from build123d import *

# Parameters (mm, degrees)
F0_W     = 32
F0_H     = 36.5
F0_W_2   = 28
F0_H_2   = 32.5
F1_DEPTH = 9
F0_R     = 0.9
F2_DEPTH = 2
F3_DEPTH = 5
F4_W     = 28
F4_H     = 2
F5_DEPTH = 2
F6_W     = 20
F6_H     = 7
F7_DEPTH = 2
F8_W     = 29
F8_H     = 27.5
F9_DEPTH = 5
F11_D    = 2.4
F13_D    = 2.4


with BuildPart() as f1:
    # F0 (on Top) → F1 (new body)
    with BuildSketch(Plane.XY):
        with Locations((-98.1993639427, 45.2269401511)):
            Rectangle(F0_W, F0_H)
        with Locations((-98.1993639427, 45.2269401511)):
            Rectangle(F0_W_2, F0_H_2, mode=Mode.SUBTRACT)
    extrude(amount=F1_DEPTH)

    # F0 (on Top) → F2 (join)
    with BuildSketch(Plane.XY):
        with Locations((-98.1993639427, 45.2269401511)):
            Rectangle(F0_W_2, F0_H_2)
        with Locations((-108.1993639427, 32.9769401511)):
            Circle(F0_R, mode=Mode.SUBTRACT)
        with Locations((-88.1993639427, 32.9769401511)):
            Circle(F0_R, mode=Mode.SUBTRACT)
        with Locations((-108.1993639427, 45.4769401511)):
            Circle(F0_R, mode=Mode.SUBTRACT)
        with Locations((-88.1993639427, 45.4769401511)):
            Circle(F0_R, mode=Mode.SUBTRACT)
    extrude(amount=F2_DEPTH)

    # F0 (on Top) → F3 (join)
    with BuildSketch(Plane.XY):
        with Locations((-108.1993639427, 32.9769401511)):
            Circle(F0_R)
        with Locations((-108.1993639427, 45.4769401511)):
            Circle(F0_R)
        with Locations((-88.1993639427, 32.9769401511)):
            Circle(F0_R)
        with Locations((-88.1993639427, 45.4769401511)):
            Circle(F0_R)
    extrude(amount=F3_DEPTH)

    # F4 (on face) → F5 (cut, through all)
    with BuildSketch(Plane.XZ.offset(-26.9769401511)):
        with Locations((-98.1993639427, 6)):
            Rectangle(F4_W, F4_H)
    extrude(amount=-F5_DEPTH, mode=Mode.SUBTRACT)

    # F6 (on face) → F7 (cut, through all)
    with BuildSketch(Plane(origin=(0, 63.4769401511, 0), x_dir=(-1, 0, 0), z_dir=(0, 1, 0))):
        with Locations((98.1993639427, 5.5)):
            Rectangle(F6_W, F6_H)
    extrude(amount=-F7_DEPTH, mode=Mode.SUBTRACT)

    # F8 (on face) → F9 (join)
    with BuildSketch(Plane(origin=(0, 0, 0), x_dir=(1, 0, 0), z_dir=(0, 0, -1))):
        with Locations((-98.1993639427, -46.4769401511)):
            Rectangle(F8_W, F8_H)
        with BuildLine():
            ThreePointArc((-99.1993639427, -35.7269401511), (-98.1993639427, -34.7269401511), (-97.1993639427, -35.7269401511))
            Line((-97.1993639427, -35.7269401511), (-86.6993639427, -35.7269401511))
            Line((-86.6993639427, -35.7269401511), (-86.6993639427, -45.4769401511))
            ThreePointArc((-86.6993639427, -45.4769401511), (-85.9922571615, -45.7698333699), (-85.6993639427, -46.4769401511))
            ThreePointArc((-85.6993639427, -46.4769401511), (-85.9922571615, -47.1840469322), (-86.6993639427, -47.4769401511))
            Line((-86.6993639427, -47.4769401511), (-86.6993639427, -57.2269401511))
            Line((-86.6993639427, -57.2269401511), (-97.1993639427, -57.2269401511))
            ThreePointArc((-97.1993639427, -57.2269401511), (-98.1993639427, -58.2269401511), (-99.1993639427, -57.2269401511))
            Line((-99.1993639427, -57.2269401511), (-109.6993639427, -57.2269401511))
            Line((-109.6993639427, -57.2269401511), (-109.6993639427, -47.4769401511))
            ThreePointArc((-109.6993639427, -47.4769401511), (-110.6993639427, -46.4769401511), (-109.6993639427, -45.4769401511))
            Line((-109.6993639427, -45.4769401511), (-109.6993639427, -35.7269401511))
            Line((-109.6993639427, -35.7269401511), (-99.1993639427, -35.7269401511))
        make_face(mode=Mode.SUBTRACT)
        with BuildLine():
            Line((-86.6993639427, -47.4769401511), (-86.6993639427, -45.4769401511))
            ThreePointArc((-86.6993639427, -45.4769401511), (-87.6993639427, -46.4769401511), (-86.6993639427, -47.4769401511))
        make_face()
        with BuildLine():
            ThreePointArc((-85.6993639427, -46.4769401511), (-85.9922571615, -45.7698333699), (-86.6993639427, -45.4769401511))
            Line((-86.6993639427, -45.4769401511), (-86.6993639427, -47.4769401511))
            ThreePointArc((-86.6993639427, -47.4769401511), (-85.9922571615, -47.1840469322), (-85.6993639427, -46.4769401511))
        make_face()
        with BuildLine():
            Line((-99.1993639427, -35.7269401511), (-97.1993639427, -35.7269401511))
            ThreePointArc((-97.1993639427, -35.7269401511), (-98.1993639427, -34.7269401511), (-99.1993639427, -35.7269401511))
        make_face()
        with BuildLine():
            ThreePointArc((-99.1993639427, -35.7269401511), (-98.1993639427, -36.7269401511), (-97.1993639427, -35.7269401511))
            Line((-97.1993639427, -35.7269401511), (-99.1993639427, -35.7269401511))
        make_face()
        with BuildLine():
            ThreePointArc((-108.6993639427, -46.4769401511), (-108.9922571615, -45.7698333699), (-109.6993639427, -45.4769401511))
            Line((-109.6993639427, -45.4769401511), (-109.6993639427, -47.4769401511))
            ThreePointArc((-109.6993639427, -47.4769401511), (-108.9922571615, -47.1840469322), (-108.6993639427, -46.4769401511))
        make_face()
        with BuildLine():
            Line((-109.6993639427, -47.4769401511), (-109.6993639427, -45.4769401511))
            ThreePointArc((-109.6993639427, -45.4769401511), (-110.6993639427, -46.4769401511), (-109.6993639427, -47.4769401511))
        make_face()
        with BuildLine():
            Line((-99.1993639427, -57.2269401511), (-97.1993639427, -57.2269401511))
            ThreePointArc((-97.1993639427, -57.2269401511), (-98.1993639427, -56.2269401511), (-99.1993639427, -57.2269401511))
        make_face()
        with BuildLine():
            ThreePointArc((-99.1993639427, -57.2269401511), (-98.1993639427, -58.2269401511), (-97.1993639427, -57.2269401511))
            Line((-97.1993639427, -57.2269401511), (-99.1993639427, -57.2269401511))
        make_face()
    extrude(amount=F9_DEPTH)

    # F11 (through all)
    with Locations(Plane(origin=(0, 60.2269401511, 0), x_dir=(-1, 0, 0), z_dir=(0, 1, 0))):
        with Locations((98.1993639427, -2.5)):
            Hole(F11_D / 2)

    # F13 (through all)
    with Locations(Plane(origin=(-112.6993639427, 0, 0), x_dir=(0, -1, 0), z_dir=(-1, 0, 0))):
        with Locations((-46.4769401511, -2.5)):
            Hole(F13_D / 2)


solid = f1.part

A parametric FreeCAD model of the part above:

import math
import FreeCAD as App
import Part
import Sketcher

V = App.Vector
Q = App.Units.Quantity


def add_polygon(sketch, points):
    """Adds a closed chain of lines whose ends are joined by coincident constraints."""
    first, n = sketch.GeometryCount, len(points)
    for a, b in zip(points, points[1:] + points[:1]):
        sketch.addGeometry(Part.LineSegment(App.Vector(*a, 0), App.Vector(*b, 0)), False)
    for i in range(n):
        sketch.addConstraint(Sketcher.Constraint("Coincident", first + i, 2, first + (i + 1) % n, 1))

doc = App.newDocument("Part")
params = doc.addObject("Spreadsheet::Sheet", "Params")
for row, (alias, value) in enumerate([
    ("sketch1_width", "32 mm"),
    ("sketch1_width2", "28 mm"),
    ("sketch1_height", "36.5 mm"),
    ("sketch1_height2", "32.5 mm"),
    ("pad1_length", "9 mm"),
    ("sketch2_diameter", "1.8 mm"),
    ("sketch2_width", "28 mm"),
    ("sketch2_height", "32.5 mm"),
    ("pad2_length", "2 mm"),
    ("sketch3_diameter", "1.8 mm"),
    ("pad3_length", "5 mm"),
    ("sketch4_width", "28 mm"),
    ("sketch4_height", "2 mm"),
    ("pocket1_length", "2 mm"),
    ("sketch5_width", "20 mm"),
    ("sketch5_height", "7 mm"),
    ("pocket2_length", "2 mm"),
    ("sketch6_radius", "1 mm"),
    ("sketch6_width", "29 mm"),
    ("sketch6_width2", "10.5 mm"),
    ("sketch6_height", "27.5 mm"),
    ("pad4_length", "5 mm"),
    ("sketch7_diameter", "2.4 mm"),
    ("hole_diameter", "2.4 mm"),
    ("sketch8_diameter", "2.4 mm"),
    ("hole2_diameter", "2.4 mm"),
], start=1):
    params.set(f"A{row}", alias)
    params.set(f"B{row}", "=" + value)
    params.setAlias(f"B{row}", alias)

body = doc.addObject("PartDesign::Body", "Body")

sketch1 = doc.addObject("Sketcher::SketchObject", "Sketch")
body.addObject(sketch1)
sketch1.AttachmentSupport = (doc.XY_Plane, [""])
sketch1.MapMode = "FlatFace"
add_polygon(sketch1, [(-114, 63), (-114, 27), (-82, 27), (-82, 63)])
add_polygon(sketch1, [(-84, 29), (-112, 29), (-112, 61), (-84, 61)])
sketch1.addConstraint(Sketcher.Constraint("Vertical", 0))
sketch1.addConstraint(Sketcher.Constraint("Horizontal", 1))
sketch1.addConstraint(Sketcher.Constraint("Vertical", 2))
sketch1.addConstraint(Sketcher.Constraint("Horizontal", 3))
sketch1.addConstraint(Sketcher.Constraint("Horizontal", 4))
sketch1.addConstraint(Sketcher.Constraint("Vertical", 5))
sketch1.addConstraint(Sketcher.Constraint("Horizontal", 6))
sketch1.addConstraint(Sketcher.Constraint("Vertical", 7))
sketch1.addConstraint(Sketcher.Constraint("DistanceX", 1, 1, 1, 2, Q("32 mm")))
sketch1.addConstraint(Sketcher.Constraint("DistanceX", 4, 2, 4, 1, Q("28 mm")))
sketch1.addConstraint(Sketcher.Constraint("DistanceY", 0, 2, 0, 1, Q("36.5 mm")))
sketch1.addConstraint(Sketcher.Constraint("DistanceY", 5, 1, 5, 2, Q("32.5 mm")))
sketch1.addConstraint(Sketcher.Constraint("DistanceX", 0, 2, 4, 2, Q("2 mm")))
sketch1.addConstraint(Sketcher.Constraint("DistanceY", 0, 2, 4, 2, Q("2 mm")))
sketch1.addConstraint(Sketcher.Constraint("DistanceY", -1, 1, 0, 2, Q("26.97694 mm")))
sketch1.addConstraint(Sketcher.Constraint("DistanceX", 0, 2, -1, 1, Q("114.199364 mm")))
sketch1.setExpression("Constraints[16]", "Params.sketch1_width")
sketch1.setExpression("Constraints[17]", "Params.sketch1_width2")
sketch1.setExpression("Constraints[18]", "Params.sketch1_height")
sketch1.setExpression("Constraints[19]", "Params.sketch1_height2")
pad1 = doc.addObject("PartDesign::Pad", "Pad")
body.addObject(pad1)
pad1.Profile = sketch1
pad1.setExpression("Length", "Params.pad1_length")

sketch2 = doc.addObject("Sketcher::SketchObject", "Sketch001")
body.addObject(sketch2)
sketch2.AttachmentSupport = (doc.XY_Plane, [""])
sketch2.MapMode = "FlatFace"
add_polygon(sketch2, [(-112.2, 61.5), (-112.2, 29), (-84.2, 29), (-84.2, 61.5)])
sketch2.addGeometry(Part.Circle(V(-108.2, 33, 0), V(0, 0, 1), 0.9), False)
sketch2.addGeometry(Part.Circle(V(-88.2, 33, 0), V(0, 0, 1), 0.9), False)
sketch2.addGeometry(Part.Circle(V(-108.2, 45.5, 0), V(0, 0, 1), 0.9), False)
sketch2.addGeometry(Part.Circle(V(-88.2, 45.5, 0), V(0, 0, 1), 0.9), False)
sketch2.addConstraint(Sketcher.Constraint("Vertical", 0))
sketch2.addConstraint(Sketcher.Constraint("Horizontal", 1))
sketch2.addConstraint(Sketcher.Constraint("Vertical", 2))
sketch2.addConstraint(Sketcher.Constraint("Horizontal", 3))
sketch2.addConstraint(Sketcher.Constraint("Equal", 4, 5))
sketch2.addConstraint(Sketcher.Constraint("Equal", 5, 6))
sketch2.addConstraint(Sketcher.Constraint("Equal", 6, 7))
sketch2.addConstraint(Sketcher.Constraint("Horizontal", 4, 3, 5, 3))
sketch2.addConstraint(Sketcher.Constraint("Horizontal", 6, 3, 7, 3))
sketch2.addConstraint(Sketcher.Constraint("Vertical", 4, 3, 6, 3))
sketch2.addConstraint(Sketcher.Constraint("Vertical", 5, 3, 7, 3))
sketch2.addConstraint(Sketcher.Constraint("Diameter", 4, Q("1.8 mm")))
sketch2.addConstraint(Sketcher.Constraint("DistanceX", 1, 1, 1, 2, Q("28 mm")))
sketch2.addConstraint(Sketcher.Constraint("DistanceY", 0, 2, 0, 1, Q("32.5 mm")))
sketch2.addConstraint(Sketcher.Constraint("DistanceX", 4, 3, 5, 3, Q("20 mm")))
sketch2.addConstraint(Sketcher.Constraint("DistanceX", 0, 2, 4, 3, Q("4 mm")))
sketch2.addConstraint(Sketcher.Constraint("DistanceY", 0, 2, 4, 3, Q("4 mm")))
sketch2.addConstraint(Sketcher.Constraint("DistanceY", 7, 3, 2, 2, Q("16 mm")))
sketch2.addConstraint(Sketcher.Constraint("DistanceY", -1, 1, 4, 3, Q("32.97694 mm")))
sketch2.addConstraint(Sketcher.Constraint("DistanceX", 4, 3, -1, 1, Q("108.199364 mm")))
sketch2.setExpression("Constraints[15]", "Params.sketch2_diameter")
sketch2.setExpression("Constraints[16]", "Params.sketch2_width")
sketch2.setExpression("Constraints[17]", "Params.sketch2_height")
pad2 = doc.addObject("PartDesign::Pad", "Pad001")
body.addObject(pad2)
pad2.Profile = sketch2
pad2.setExpression("Length", "Params.pad2_length")

sketch3 = doc.addObject("Sketcher::SketchObject", "Sketch002")
body.addObject(sketch3)
sketch3.AttachmentSupport = (doc.XY_Plane, [""])
sketch3.MapMode = "FlatFace"
sketch3.addGeometry(Part.Circle(V(-108.2, 33, 0), V(0, 0, 1), 0.9), False)
sketch3.addGeometry(Part.Circle(V(-108.2, 45.5, 0), V(0, 0, 1), 0.9), False)
sketch3.addGeometry(Part.Circle(V(-88.2, 33, 0), V(0, 0, 1), 0.9), False)
sketch3.addGeometry(Part.Circle(V(-88.2, 45.5, 0), V(0, 0, 1), 0.9), False)
sketch3.addConstraint(Sketcher.Constraint("Equal", 0, 1))
sketch3.addConstraint(Sketcher.Constraint("Equal", 1, 2))
sketch3.addConstraint(Sketcher.Constraint("Equal", 2, 3))
sketch3.addConstraint(Sketcher.Constraint("Horizontal", 0, 3, 2, 3))
sketch3.addConstraint(Sketcher.Constraint("Horizontal", 1, 3, 3, 3))
sketch3.addConstraint(Sketcher.Constraint("Vertical", 0, 3, 1, 3))
sketch3.addConstraint(Sketcher.Constraint("Vertical", 2, 3, 3, 3))
sketch3.addConstraint(Sketcher.Constraint("Diameter", 0, Q("1.8 mm")))
sketch3.addConstraint(Sketcher.Constraint("DistanceX", 0, 3, 2, 3, Q("20 mm")))
sketch3.addConstraint(Sketcher.Constraint("DistanceY", 0, 3, 1, 3, Q("12.5 mm")))
sketch3.addConstraint(Sketcher.Constraint("DistanceY", -1, 1, 0, 3, Q("32.97694 mm")))
sketch3.addConstraint(Sketcher.Constraint("DistanceX", 0, 3, -1, 1, Q("108.199364 mm")))
sketch3.setExpression("Constraints[7]", "Params.sketch3_diameter")
pad3 = doc.addObject("PartDesign::Pad", "Pad002")
body.addObject(pad3)
pad3.Profile = sketch3
pad3.setExpression("Length", "Params.pad3_length")

sketch4 = doc.addObject("Sketcher::SketchObject", "Sketch003")
body.addObject(sketch4)
sketch4.AttachmentSupport = (doc.XZ_Plane, [""])
sketch4.MapMode = "FlatFace"
sketch4.AttachmentOffset = App.Placement(V(0, 0, -26.97694), App.Rotation())
add_polygon(sketch4, [(-112.2, 7), (-112.2, 5), (-84.2, 5), (-84.2, 7)])
sketch4.addConstraint(Sketcher.Constraint("Vertical", 0))
sketch4.addConstraint(Sketcher.Constraint("Horizontal", 1))
sketch4.addConstraint(Sketcher.Constraint("Vertical", 2))
sketch4.addConstraint(Sketcher.Constraint("Horizontal", 3))
sketch4.addConstraint(Sketcher.Constraint("DistanceX", 1, 1, 1, 2, Q("28 mm")))
sketch4.addConstraint(Sketcher.Constraint("DistanceY", 0, 2, 0, 1, Q("2 mm")))
sketch4.addConstraint(Sketcher.Constraint("DistanceY", -1, 1, 0, 2, Q("5 mm")))
sketch4.addConstraint(Sketcher.Constraint("DistanceX", 0, 2, -1, 1, Q("112.199364 mm")))
sketch4.setExpression("Constraints[8]", "Params.sketch4_width")
sketch4.setExpression("Constraints[9]", "Params.sketch4_height")
pocket1 = doc.addObject("PartDesign::Pocket", "Pocket")
body.addObject(pocket1)
pocket1.Profile = sketch4
pocket1.setExpression("Length", "Params.pocket1_length")

sketch5 = doc.addObject("Sketcher::SketchObject", "Sketch004")
body.addObject(sketch5)
sketch5.AttachmentSupport = (doc.XZ_Plane, [""])
sketch5.MapMode = "FlatFace"
sketch5.AttachmentOffset = App.Placement(V(0, 0, -63.47694), App.Rotation())
add_polygon(sketch5, [(-88, 9), (-88, 2), (-108, 2), (-108, 9)])
sketch5.addConstraint(Sketcher.Constraint("Vertical", 0))
sketch5.addConstraint(Sketcher.Constraint("Horizontal", 1))
sketch5.addConstraint(Sketcher.Constraint("Vertical", 2))
sketch5.addConstraint(Sketcher.Constraint("Horizontal", 3))
sketch5.addConstraint(Sketcher.Constraint("DistanceX", 1, 2, 1, 1, Q("20 mm")))
sketch5.addConstraint(Sketcher.Constraint("DistanceY", 0, 2, 0, 1, Q("7 mm")))
sketch5.addConstraint(Sketcher.Constraint("DistanceY", -1, 1, 0, 2, Q("2 mm")))
sketch5.addConstraint(Sketcher.Constraint("DistanceX", 0, 2, -1, 1, Q("88.199364 mm")))
sketch5.setExpression("Constraints[8]", "Params.sketch5_width")
sketch5.setExpression("Constraints[9]", "Params.sketch5_height")
pocket2 = doc.addObject("PartDesign::Pocket", "Pocket001")
body.addObject(pocket2)
pocket2.Profile = sketch5
pocket2.setExpression("Length", "Params.pocket2_length")
pocket2.Reversed = True

sketch6 = doc.addObject("Sketcher::SketchObject", "Sketch005")
body.addObject(sketch6)
sketch6.AttachmentSupport = (doc.XY_Plane, [""])
sketch6.MapMode = "FlatFace"
add_polygon(sketch6, [(-112.7, 32.7), (-112.7, 60.2), (-83.7, 60.2), (-83.7, 32.7)])
sketch6.addGeometry(Part.LineSegment(V(-109.7, 35.7, 0), V(-99.2, 35.7, 0)), False)
sketch6.addGeometry(Part.ArcOfCircle(Part.Circle(V(-98.2, 35.7, 0), V(0, 0, 1), 1), math.radians(0), math.radians(180)), False)
sketch6.addGeometry(Part.LineSegment(V(-97.2, 35.7, 0), V(-86.7, 35.7, 0)), False)
sketch6.addGeometry(Part.LineSegment(V(-86.7, 35.7, 0), V(-86.7, 45.5, 0)), False)
sketch6.addGeometry(Part.ArcOfCircle(Part.Circle(V(-86.7, 46.5, 0), V(0, 0, 1), 1), math.radians(90), math.radians(270)), False)
sketch6.addGeometry(Part.LineSegment(V(-86.7, 47.5, 0), V(-86.7, 57.2, 0)), False)
sketch6.addGeometry(Part.LineSegment(V(-86.7, 57.2, 0), V(-97.2, 57.2, 0)), False)
sketch6.addGeometry(Part.ArcOfCircle(Part.Circle(V(-98.2, 57.2, 0), V(0, 0, 1), 1), math.radians(180), math.radians(360)), False)
sketch6.addGeometry(Part.LineSegment(V(-99.2, 57.2, 0), V(-109.7, 57.2, 0)), False)
sketch6.addGeometry(Part.LineSegment(V(-109.7, 57.2, 0), V(-109.7, 47.5, 0)), False)
sketch6.addGeometry(Part.ArcOfCircle(Part.Circle(V(-109.7, 46.5, 0), V(0, 0, 1), 1), math.radians(0), math.radians(90)), False)
sketch6.addGeometry(Part.ArcOfCircle(Part.Circle(V(-109.7, 46.5, 0), V(0, 0, 1), 1), math.radians(-90), math.radians(0)), False)
sketch6.addGeometry(Part.LineSegment(V(-109.7, 45.5, 0), V(-109.7, 35.7, 0)), False)
sketch6.addConstraint(Sketcher.Constraint("Coincident", 4, 2, 5, 2))
sketch6.addConstraint(Sketcher.Constraint("Coincident", 5, 1, 6, 1))
sketch6.addConstraint(Sketcher.Constraint("Coincident", 6, 2, 7, 1))
sketch6.addConstraint(Sketcher.Constraint("Coincident", 7, 2, 8, 2))
sketch6.addConstraint(Sketcher.Constraint("Coincident", 8, 1, 9, 1))
sketch6.addConstraint(Sketcher.Constraint("Coincident", 9, 2, 10, 1))
sketch6.addConstraint(Sketcher.Constraint("Coincident", 10, 2, 11, 2))
sketch6.addConstraint(Sketcher.Constraint("Coincident", 11, 1, 12, 1))
sketch6.addConstraint(Sketcher.Constraint("Coincident", 12, 2, 13, 1))
sketch6.addConstraint(Sketcher.Constraint("Coincident", 13, 2, 14, 2))
sketch6.addConstraint(Sketcher.Constraint("Tangent", 14, 1, 15, 2))
sketch6.addConstraint(Sketcher.Constraint("Coincident", 15, 1, 16, 1))
sketch6.addConstraint(Sketcher.Constraint("Coincident", 16, 2, 4, 1))
sketch6.addConstraint(Sketcher.Constraint("Vertical", 0))
sketch6.addConstraint(Sketcher.Constraint("Horizontal", 1))
sketch6.addConstraint(Sketcher.Constraint("Vertical", 2))
sketch6.addConstraint(Sketcher.Constraint("Horizontal", 3))
sketch6.addConstraint(Sketcher.Constraint("Horizontal", 4))
sketch6.addConstraint(Sketcher.Constraint("Horizontal", 6))
sketch6.addConstraint(Sketcher.Constraint("Vertical", 7))
sketch6.addConstraint(Sketcher.Constraint("Vertical", 9))
sketch6.addConstraint(Sketcher.Constraint("Horizontal", 10))
sketch6.addConstraint(Sketcher.Constraint("Horizontal", 12))
sketch6.addConstraint(Sketcher.Constraint("Vertical", 13))
sketch6.addConstraint(Sketcher.Constraint("Vertical", 16))
sketch6.addConstraint(Sketcher.Constraint("Equal", 5, 8))
sketch6.addConstraint(Sketcher.Constraint("Equal", 8, 11))
sketch6.addConstraint(Sketcher.Constraint("Equal", 11, 14))
sketch6.addConstraint(Sketcher.Constraint("Equal", 14, 15))
sketch6.addConstraint(Sketcher.Constraint("Horizontal", 8, 3, 14, 3))
sketch6.addConstraint(Sketcher.Constraint("Horizontal", 5, 3, 4, 2))
sketch6.addConstraint(Sketcher.Constraint("Horizontal", 4, 2, 5, 1))
sketch6.addConstraint(Sketcher.Constraint("Horizontal", 11, 3, 9, 2))
sketch6.addConstraint(Sketcher.Constraint("Horizontal", 10, 2, 11, 1))
sketch6.addConstraint(Sketcher.Constraint("Horizontal", 15, 3, 14, 1))
sketch6.addConstraint(Sketcher.Constraint("Vertical", 5, 3, 11, 3))
sketch6.addConstraint(Sketcher.Constraint("Vertical", 8, 3, 6, 2))
sketch6.addConstraint(Sketcher.Constraint("Vertical", 7, 2, 8, 1))
sketch6.addConstraint(Sketcher.Constraint("Vertical", 15, 3, 12, 2))
sketch6.addConstraint(Sketcher.Constraint("Vertical", 13, 2, 15, 1))
sketch6.addConstraint(Sketcher.Constraint("Equal", 4, 6))
sketch6.addConstraint(Sketcher.Constraint("Equal", 7, 9))
sketch6.addConstraint(Sketcher.Constraint("Radius", 5, Q("1 mm")))
sketch6.addConstraint(Sketcher.Constraint("DistanceX", 1, 1, 1, 2, Q("29 mm")))
sketch6.addConstraint(Sketcher.Constraint("DistanceX", 4, 1, 4, 2, Q("10.5 mm")))
sketch6.addConstraint(Sketcher.Constraint("DistanceY", 0, 1, 0, 2, Q("27.5 mm")))
sketch6.addConstraint(Sketcher.Constraint("DistanceX", 0, 2, 14, 3, Q("3 mm")))
sketch6.addConstraint(Sketcher.Constraint("DistanceY", 11, 3, 0, 2, Q("3 mm")))
sketch6.addConstraint(Sketcher.Constraint("DistanceY", 2, 2, 5, 3, Q("3 mm")))
sketch6.addConstraint(Sketcher.Constraint("DistanceY", -1, 1, 5, 3, Q("35.72694 mm")))
sketch6.addConstraint(Sketcher.Constraint("DistanceX", 5, 3, -1, 1, Q("98.199364 mm")))
sketch6.setExpression("Constraints[46]", "Params.sketch6_radius")
sketch6.setExpression("Constraints[47]", "Params.sketch6_width")
sketch6.setExpression("Constraints[48]", "Params.sketch6_width2")
sketch6.setExpression("Constraints[49]", "Params.sketch6_height")
pad4 = doc.addObject("PartDesign::Pad", "Pad003")
body.addObject(pad4)
pad4.Profile = sketch6
pad4.setExpression("Length", "Params.pad4_length")
pad4.Reversed = True

sketch7 = doc.addObject("Sketcher::SketchObject", "Sketch006")
body.addObject(sketch7)
sketch7.AttachmentSupport = (doc.XZ_Plane, [""])
sketch7.MapMode = "FlatFace"
sketch7.AttachmentOffset = App.Placement(V(0, 0, -60.22694), App.Rotation())
sketch7.addGeometry(Part.Circle(V(-98.2, -2.5, 0), V(0, 0, 1), 1.2), False)
sketch7.addConstraint(Sketcher.Constraint("Diameter", 0, Q("2.4 mm")))
sketch7.addConstraint(Sketcher.Constraint("DistanceY", 0, 3, -1, 1, Q("2.5 mm")))
sketch7.addConstraint(Sketcher.Constraint("DistanceX", 0, 3, -1, 1, Q("98.199364 mm")))
sketch7.setExpression("Constraints[0]", "Params.sketch7_diameter")
doc.recompute()
hole = doc.addObject("PartDesign::Hole", "Hole")
body.addObject(hole)
hole.Profile = sketch7
hole.ThreadType = "None"
hole.setExpression("Diameter", "Params.hole_diameter")
hole.DepthType = "ThroughAll"
hole.Reversed = True

sketch8 = doc.addObject("Sketcher::SketchObject", "Sketch007")
body.addObject(sketch8)
sketch8.AttachmentSupport = (doc.YZ_Plane, [""])
sketch8.MapMode = "FlatFace"
sketch8.AttachmentOffset = App.Placement(V(0, 0, -112.699364), App.Rotation())
sketch8.addGeometry(Part.Circle(V(46.5, -2.5, 0), V(0, 0, 1), 1.2), False)
sketch8.addConstraint(Sketcher.Constraint("Diameter", 0, Q("2.4 mm")))
sketch8.addConstraint(Sketcher.Constraint("DistanceY", 0, 3, -1, 1, Q("2.5 mm")))
sketch8.addConstraint(Sketcher.Constraint("DistanceX", -1, 1, 0, 3, Q("46.47694 mm")))
sketch8.setExpression("Constraints[0]", "Params.sketch8_diameter")
doc.recompute()
hole2 = doc.addObject("PartDesign::Hole", "Hole001")
body.addObject(hole2)
hole2.Profile = sketch8
hole2.ThreadType = "None"
hole2.setExpression("Diameter", "Params.hole2_diameter")
hole2.DepthType = "ThroughAll"
hole2.Reversed = True

doc.recompute()
